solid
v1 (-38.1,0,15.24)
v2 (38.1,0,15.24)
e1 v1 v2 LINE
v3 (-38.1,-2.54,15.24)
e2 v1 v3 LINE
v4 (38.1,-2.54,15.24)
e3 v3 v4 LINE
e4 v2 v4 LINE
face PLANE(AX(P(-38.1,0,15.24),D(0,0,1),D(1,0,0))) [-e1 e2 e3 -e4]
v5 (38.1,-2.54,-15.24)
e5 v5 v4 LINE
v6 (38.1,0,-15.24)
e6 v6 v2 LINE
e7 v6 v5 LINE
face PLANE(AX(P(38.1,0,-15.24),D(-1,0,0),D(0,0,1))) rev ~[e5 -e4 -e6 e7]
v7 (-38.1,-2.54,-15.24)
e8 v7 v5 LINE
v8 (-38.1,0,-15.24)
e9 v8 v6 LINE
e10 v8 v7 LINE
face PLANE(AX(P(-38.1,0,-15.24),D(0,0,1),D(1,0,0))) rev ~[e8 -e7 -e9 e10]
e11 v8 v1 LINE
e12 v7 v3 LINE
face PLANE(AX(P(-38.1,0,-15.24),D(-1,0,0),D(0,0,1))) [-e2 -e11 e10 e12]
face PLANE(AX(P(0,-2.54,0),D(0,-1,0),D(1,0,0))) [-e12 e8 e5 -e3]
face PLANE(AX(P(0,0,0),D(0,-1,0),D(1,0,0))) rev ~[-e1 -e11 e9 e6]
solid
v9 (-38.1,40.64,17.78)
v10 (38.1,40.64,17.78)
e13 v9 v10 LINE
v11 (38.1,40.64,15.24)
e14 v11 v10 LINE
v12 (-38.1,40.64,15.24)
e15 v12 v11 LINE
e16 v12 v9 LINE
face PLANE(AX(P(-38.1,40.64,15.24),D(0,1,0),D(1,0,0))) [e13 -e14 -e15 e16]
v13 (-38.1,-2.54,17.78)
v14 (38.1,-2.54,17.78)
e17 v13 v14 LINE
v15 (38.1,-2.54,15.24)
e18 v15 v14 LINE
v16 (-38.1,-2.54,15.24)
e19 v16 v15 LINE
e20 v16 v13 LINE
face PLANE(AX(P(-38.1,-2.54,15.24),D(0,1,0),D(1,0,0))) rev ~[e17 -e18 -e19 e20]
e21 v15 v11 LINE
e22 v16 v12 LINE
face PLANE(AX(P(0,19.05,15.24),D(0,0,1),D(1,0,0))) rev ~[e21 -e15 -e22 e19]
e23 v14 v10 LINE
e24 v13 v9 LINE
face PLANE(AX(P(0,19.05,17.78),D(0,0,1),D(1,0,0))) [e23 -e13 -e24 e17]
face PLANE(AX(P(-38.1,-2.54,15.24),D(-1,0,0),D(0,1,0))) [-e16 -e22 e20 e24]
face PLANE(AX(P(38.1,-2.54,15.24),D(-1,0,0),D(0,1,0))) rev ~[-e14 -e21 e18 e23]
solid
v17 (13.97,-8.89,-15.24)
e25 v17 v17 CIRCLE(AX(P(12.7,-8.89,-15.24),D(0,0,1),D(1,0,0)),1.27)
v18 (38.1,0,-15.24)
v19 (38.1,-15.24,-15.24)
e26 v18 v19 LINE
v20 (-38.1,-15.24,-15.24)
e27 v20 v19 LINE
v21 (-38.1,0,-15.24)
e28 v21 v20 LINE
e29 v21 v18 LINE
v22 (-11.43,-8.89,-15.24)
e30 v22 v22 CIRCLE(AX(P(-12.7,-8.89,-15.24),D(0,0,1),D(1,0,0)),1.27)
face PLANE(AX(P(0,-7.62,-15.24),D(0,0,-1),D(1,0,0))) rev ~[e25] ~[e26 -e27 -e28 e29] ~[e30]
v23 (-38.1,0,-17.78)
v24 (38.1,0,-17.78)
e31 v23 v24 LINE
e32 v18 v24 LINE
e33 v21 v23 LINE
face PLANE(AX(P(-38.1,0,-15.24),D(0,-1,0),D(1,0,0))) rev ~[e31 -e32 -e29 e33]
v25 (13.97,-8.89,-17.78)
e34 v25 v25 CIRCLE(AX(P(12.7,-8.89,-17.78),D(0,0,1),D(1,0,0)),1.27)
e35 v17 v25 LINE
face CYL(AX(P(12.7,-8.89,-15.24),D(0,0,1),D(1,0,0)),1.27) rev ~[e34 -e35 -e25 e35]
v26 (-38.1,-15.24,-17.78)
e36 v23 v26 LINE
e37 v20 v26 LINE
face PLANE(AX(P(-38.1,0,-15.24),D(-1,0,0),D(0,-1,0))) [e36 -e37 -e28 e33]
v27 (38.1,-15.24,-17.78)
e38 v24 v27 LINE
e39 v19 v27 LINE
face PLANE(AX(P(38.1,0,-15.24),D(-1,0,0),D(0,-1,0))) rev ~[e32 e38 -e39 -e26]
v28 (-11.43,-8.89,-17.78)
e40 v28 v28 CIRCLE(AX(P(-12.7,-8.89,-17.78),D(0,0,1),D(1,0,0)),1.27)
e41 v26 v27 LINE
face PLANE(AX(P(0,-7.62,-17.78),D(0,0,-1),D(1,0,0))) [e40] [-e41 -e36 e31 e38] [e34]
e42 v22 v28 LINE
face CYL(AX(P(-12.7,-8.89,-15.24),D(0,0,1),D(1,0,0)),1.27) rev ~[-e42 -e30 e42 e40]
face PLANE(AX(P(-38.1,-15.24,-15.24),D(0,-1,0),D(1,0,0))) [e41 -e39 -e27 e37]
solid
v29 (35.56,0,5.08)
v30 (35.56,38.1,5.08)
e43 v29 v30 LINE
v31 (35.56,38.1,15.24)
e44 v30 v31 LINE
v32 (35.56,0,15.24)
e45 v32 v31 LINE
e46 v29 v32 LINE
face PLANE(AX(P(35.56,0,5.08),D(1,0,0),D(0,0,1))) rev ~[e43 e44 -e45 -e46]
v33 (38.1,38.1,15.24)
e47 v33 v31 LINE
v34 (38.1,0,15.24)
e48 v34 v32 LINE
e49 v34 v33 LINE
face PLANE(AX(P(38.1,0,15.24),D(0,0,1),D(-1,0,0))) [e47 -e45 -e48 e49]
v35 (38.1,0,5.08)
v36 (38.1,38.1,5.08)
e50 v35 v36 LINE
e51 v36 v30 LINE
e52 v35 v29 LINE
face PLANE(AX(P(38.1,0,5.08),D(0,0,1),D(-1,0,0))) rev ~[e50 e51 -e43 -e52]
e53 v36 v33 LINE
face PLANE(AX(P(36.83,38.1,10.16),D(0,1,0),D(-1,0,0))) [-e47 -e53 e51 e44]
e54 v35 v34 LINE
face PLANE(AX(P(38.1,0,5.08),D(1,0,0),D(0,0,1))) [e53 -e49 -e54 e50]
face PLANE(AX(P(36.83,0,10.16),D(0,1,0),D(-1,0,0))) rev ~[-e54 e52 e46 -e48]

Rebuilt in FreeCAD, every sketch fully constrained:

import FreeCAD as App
import Part
import Sketcher
Q = App.Units.Quantity

doc = App.newDocument("Part")
body = doc.addObject("PartDesign::Body", "Body")

sketch1 = doc.addObject("Sketcher::SketchObject", "Sketch")
body.addObject(sketch1)
sketch1.AttachmentSupport = (doc.XZ_Plane, [""])
sketch1.MapMode = "FlatFace"
sketch1.addGeometry([
    Part.LineSegment(App.Vector(-38.1, 15.24, 0), App.Vector(-38.1, -15.24, 0)),
    Part.LineSegment(App.Vector(-38.1, -15.24, 0), App.Vector(38.1, -15.24, 0)),
    Part.LineSegment(App.Vector(38.1, -15.24, 0), App.Vector(38.1, 15.24, 0)),
    Part.LineSegment(App.Vector(38.1, 15.24, 0), App.Vector(-38.1, 15.24, 0)),
], False)
sketch1.addConstraint([
    Sketcher.Constraint("Coincident", 0, 2, 1, 1),
    Sketcher.Constraint("Coincident", 1, 2, 2, 1),
    Sketcher.Constraint("Coincident", 2, 2, 3, 1),
    Sketcher.Constraint("Coincident", 3, 2, 0, 1),
    Sketcher.Constraint("Vertical", 0),
    Sketcher.Constraint("Horizontal", 1),
    Sketcher.Constraint("Vertical", 2),
    Sketcher.Constraint("Horizontal", 3),
    Sketcher.Constraint("Symmetric", 0, 2, 2, 2, -1, 1),
    Sketcher.Constraint("DistanceX", 1, 1, 1, 2, Q("3 in")),
    Sketcher.Constraint("DistanceY", 0, 2, 0, 1, Q("1.2 in")),
])
pad1 = doc.addObject("PartDesign::Pad", "Pad")
body.addObject(pad1)
pad1.Profile = sketch1
pad1.Length = Q("0.1 in")

sketch2 = doc.addObject("Sketcher::SketchObject", "Sketch001")
body.addObject(sketch2)
sketch2.AttachmentSupport = (doc.XY_Plane, [""])
sketch2.MapMode = "FlatFace"
sketch2.AttachmentOffset = App.Placement(App.Vector(0, 0, -0.6 * 25.4), App.Rotation())
sketch2.addGeometry([
    Part.Circle(App.Vector(-12.7, -8.89, 0), App.Vector(0, 0, 1), 1.27),
    Part.Circle(App.Vector(12.7, -8.89, 0), App.Vector(0, 0, 1), 1.27),
], False)
sketch2.addConstraint([
    Sketcher.Constraint("Equal", 0, 1),
    Sketcher.Constraint("Symmetric", 0, 3, 1, 3, -2),
    Sketcher.Constraint("Diameter", 0, Q("0.1 in")),
    Sketcher.Constraint("DistanceX", 0, 3, 1, 3, Q("1 in")),
    Sketcher.Constraint("DistanceY", 0, 3, -1, 1, Q("0.35 in")),
])
pocket1 = doc.addObject("PartDesign::Pocket", "Pocket")
body.addObject(pocket1)
pocket1.Profile = sketch2
pocket1.Length = Q("0.1 in")
body2 = doc.addObject("PartDesign::Body", "Body001")

sketch3 = doc.addObject("Sketcher::SketchObject", "Sketch002")
body2.addObject(sketch3)
sketch3.AttachmentSupport = (doc.getObject("YZ_Plane001"), [""])
sketch3.MapMode = "FlatFace"
sketch3.addGeometry([
    Part.LineSegment(App.Vector(-21.59, 5.08, 0), App.Vector(-21.59, -5.08, 0)),
    Part.LineSegment(App.Vector(-21.59, -5.08, 0), App.Vector(21.59, -5.08, 0)),
    Part.LineSegment(App.Vector(21.59, -5.08, 0), App.Vector(21.59, 5.08, 0)),
    Part.LineSegment(App.Vector(21.59, 5.08, 0), App.Vector(-21.59, 5.08, 0)),
], False)
sketch3.addConstraint([
    Sketcher.Constraint("Coincident", 0, 2, 1, 1),
    Sketcher.Constraint("Coincident", 1, 2, 2, 1),
    Sketcher.Constraint("Coincident", 2, 2, 3, 1),
    Sketcher.Constraint("Coincident", 3, 2, 0, 1),
    Sketcher.Constraint("Vertical", 0),
    Sketcher.Constraint("Horizontal", 1),
    Sketcher.Constraint("Vertical", 2),
    Sketcher.Constraint("Horizontal", 3),
    Sketcher.Constraint("Symmetric", 0, 2, 2, 2, -1, 1),
    Sketcher.Constraint("DistanceX", 1, 1, 1, 2, Q("1.7 in")),
    Sketcher.Constraint("DistanceY", 0, 2, 0, 1, Q("0.4 in")),
])
pad2 = doc.addObject("PartDesign::Pad", "Pad001")
body2.addObject(pad2)
pad2.Profile = sketch3
pad2.Length = Q("0.1 in")
body3 = doc.addObject("PartDesign::Body", "Body002")

sketch4 = doc.addObject("Sketcher::SketchObject", "Sketch003")
body3.addObject(sketch4)
sketch4.AttachmentSupport = (doc.getObject("XZ_Plane002"), [""])
sketch4.MapMode = "FlatFace"
sketch4.addGeometry([
    Part.LineSegment(App.Vector(38.1, 15.24, 0), App.Vector(38.1, 5.08, 0)),
    Part.LineSegment(App.Vector(38.1, 5.08, 0), App.Vector(35.56, 5.08, 0)),
    Part.LineSegment(App.Vector(35.56, 5.08, 0), App.Vector(35.56, 15.24, 0)),
    Part.LineSegment(App.Vector(35.56, 15.24, 0), App.Vector(38.1, 15.24, 0)),
], False)
sketch4.addConstraint([
    Sketcher.Constraint("Coincident", 0, 2, 1, 1),
    Sketcher.Constraint("Coincident", 1, 2, 2, 1),
    Sketcher.Constraint("Coincident", 2, 2, 3, 1),
    Sketcher.Constraint("Coincident", 3, 2, 0, 1),
    Sketcher.Constraint("Vertical", 0),
    Sketcher.Constraint("Horizontal", 1),
    Sketcher.Constraint("Vertical", 2),
    Sketcher.Constraint("Horizontal", 3),
    Sketcher.Constraint("DistanceX", 1, 2, 1, 1, Q("0.1 in")),
    Sketcher.Constraint("DistanceY", 0, 2, 0, 1, Q("0.4 in")),
    Sketcher.Constraint("DistanceX", -1, 1, 0, 2, Q("1.5 in")),
    Sketcher.Constraint("DistanceY", -1, 1, 0, 2, Q("0.2 in")),
])
pad3 = doc.addObject("PartDesign::Pad", "Pad002")
body3.addObject(pad3)
pad3.Profile = sketch4
pad3.Length = Q("1.5 in")
pad3.Reversed = True
body4 = doc.addObject("PartDesign::Body", "Body003")

sketch5 = doc.addObject("Sketcher::SketchObject", "Sketch004")
body4.addObject(sketch5)
sketch5.AttachmentSupport = (doc.getObject("XY_Plane003"), [""])
sketch5.MapMode = "FlatFace"
sketch5.AttachmentOffset = App.Placement(App.Vector(0, 0, 0.6 * 25.4), App.Rotation())
sketch5.addGeometry([
    Part.LineSegment(App.Vector(-38.1, 40.64, 0), App.Vector(-38.1, -2.54, 0)),
    Part.LineSegment(App.Vector(-38.1, -2.54, 0), App.Vector(38.1, -2.54, 0)),
    Part.LineSegment(App.Vector(38.1, -2.54, 0), App.Vector(38.1, 40.64, 0)),
    Part.LineSegment(App.Vector(38.1, 40.64, 0), App.Vector(-38.1, 40.64, 0)),
], False)
sketch5.addConstraint([
    Sketcher.Constraint("Coincident", 0, 2, 1, 1),
    Sketcher.Constraint("Coincident", 1, 2, 2, 1),
    Sketcher.Constraint("Coincident", 2, 2, 3, 1),
    Sketcher.Constraint("Coincident", 3, 2, 0, 1),
    Sketcher.Constraint("Vertical", 0),
    Sketcher.Constraint("Horizontal", 1),
    Sketcher.Constraint("Vertical", 2),
    Sketcher.Constraint("Horizontal", 3),
    Sketcher.Constraint("DistanceX", 1, 1, 1, 2, Q("3 in")),
    Sketcher.Constraint("DistanceY", 0, 2, 0, 1, Q("1.7 in")),
    Sketcher.Constraint("DistanceX", 0, 2, -1, 1, Q("1.5 in")),
    Sketcher.Constraint("DistanceY", 0, 2, -1, 1, Q("0.1 in")),
])
pad4 = doc.addObject("PartDesign::Pad", "Pad003")
body4.addObject(pad4)
pad4.Profile = sketch5
pad4.Length = Q("0.1 in")
body5 = doc.addObject("PartDesign::Body", "Body004")

sketch6 = doc.addObject("Sketcher::SketchObject", "Sketch005")
body5.addObject(sketch6)
sketch6.AttachmentSupport = (doc.getObject("XY_Plane004"), [""])
sketch6.MapMode = "FlatFace"
sketch6.AttachmentOffset = App.Placement(App.Vector(0, 0, -0.6 * 25.4), App.Rotation())
sketch6.addGeometry([
    Part.LineSegment(App.Vector(-38.1, -15.24, 0), App.Vector(-38.1, 0, 0)),
    Part.LineSegment(App.Vector(-38.1, 0, 0), App.Vector(38.1, 0, 0)),
    Part.LineSegment(App.Vector(38.1, 0, 0), App.Vector(38.1, -15.24, 0)),
    Part.LineSegment(App.Vector(38.1, -15.24, 0), App.Vector(-38.1, -15.24, 0)),
], False)
sketch6.addConstraint([
    Sketcher.Constraint("Coincident", 0, 2, 1, 1),
    Sketcher.Constraint("Coincident", 1, 2, 2, 1),
    Sketcher.Constraint("Coincident", 2, 2, 3, 1),
    Sketcher.Constraint("Coincident", 3, 2, 0, 1),
    Sketcher.Constraint("Vertical", 0),
    Sketcher.Constraint("Horizontal", 1),
    Sketcher.Constraint("Vertical", 2),
    Sketcher.Constraint("Horizontal", 3),
    Sketcher.Constraint("Symmetric", 0, 2, 1, 2, -1, 1),
    Sketcher.Constraint("DistanceX", 1, 1, 1, 2, Q("3 in")),
    Sketcher.Constraint("DistanceY", 0, 1, 0, 2, Q("0.6 in")),
])
pad5 = doc.addObject("PartDesign::Pad", "Pad004")
body5.addObject(pad5)
pad5.Profile = sketch6
pad5.Length = Q("0.1 in")
pad5.Reversed = True

sketch7 = doc.addObject("Sketcher::SketchObject", "Sketch006")
body5.addObject(sketch7)
sketch7.AttachmentSupport = (doc.getObject("XY_Plane004"), [""])
sketch7.MapMode = "FlatFace"
sketch7.AttachmentOffset = App.Placement(App.Vector(0, 0, -0.6 * 25.4), App.Rotation())
sketch7.addGeometry([
    Part.Circle(App.Vector(-12.7, -8.89, 0), App.Vector(0, 0, 1), 1.27),
    Part.Circle(App.Vector(12.7, -8.89, 0), App.Vector(0, 0, 1), 1.27),
], False)
sketch7.addConstraint([
    Sketcher.Constraint("Equal", 0, 1),
    Sketcher.Constraint("Symmetric", 0, 3, 1, 3, -2),
    Sketcher.Constraint("Diameter", 0, Q("0.1 in")),
    Sketcher.Constraint("DistanceX", 0, 3, 1, 3, Q("1 in")),
    Sketcher.Constraint("DistanceY", 0, 3, -1, 1, Q("0.35 in")),
])
pocket2 = doc.addObject("PartDesign::Pocket", "Pocket001")
body5.addObject(pocket2)
pocket2.Profile = sketch7
pocket2.Length = Q("0.1 in")
body2.Visibility = False

doc.recompute()
